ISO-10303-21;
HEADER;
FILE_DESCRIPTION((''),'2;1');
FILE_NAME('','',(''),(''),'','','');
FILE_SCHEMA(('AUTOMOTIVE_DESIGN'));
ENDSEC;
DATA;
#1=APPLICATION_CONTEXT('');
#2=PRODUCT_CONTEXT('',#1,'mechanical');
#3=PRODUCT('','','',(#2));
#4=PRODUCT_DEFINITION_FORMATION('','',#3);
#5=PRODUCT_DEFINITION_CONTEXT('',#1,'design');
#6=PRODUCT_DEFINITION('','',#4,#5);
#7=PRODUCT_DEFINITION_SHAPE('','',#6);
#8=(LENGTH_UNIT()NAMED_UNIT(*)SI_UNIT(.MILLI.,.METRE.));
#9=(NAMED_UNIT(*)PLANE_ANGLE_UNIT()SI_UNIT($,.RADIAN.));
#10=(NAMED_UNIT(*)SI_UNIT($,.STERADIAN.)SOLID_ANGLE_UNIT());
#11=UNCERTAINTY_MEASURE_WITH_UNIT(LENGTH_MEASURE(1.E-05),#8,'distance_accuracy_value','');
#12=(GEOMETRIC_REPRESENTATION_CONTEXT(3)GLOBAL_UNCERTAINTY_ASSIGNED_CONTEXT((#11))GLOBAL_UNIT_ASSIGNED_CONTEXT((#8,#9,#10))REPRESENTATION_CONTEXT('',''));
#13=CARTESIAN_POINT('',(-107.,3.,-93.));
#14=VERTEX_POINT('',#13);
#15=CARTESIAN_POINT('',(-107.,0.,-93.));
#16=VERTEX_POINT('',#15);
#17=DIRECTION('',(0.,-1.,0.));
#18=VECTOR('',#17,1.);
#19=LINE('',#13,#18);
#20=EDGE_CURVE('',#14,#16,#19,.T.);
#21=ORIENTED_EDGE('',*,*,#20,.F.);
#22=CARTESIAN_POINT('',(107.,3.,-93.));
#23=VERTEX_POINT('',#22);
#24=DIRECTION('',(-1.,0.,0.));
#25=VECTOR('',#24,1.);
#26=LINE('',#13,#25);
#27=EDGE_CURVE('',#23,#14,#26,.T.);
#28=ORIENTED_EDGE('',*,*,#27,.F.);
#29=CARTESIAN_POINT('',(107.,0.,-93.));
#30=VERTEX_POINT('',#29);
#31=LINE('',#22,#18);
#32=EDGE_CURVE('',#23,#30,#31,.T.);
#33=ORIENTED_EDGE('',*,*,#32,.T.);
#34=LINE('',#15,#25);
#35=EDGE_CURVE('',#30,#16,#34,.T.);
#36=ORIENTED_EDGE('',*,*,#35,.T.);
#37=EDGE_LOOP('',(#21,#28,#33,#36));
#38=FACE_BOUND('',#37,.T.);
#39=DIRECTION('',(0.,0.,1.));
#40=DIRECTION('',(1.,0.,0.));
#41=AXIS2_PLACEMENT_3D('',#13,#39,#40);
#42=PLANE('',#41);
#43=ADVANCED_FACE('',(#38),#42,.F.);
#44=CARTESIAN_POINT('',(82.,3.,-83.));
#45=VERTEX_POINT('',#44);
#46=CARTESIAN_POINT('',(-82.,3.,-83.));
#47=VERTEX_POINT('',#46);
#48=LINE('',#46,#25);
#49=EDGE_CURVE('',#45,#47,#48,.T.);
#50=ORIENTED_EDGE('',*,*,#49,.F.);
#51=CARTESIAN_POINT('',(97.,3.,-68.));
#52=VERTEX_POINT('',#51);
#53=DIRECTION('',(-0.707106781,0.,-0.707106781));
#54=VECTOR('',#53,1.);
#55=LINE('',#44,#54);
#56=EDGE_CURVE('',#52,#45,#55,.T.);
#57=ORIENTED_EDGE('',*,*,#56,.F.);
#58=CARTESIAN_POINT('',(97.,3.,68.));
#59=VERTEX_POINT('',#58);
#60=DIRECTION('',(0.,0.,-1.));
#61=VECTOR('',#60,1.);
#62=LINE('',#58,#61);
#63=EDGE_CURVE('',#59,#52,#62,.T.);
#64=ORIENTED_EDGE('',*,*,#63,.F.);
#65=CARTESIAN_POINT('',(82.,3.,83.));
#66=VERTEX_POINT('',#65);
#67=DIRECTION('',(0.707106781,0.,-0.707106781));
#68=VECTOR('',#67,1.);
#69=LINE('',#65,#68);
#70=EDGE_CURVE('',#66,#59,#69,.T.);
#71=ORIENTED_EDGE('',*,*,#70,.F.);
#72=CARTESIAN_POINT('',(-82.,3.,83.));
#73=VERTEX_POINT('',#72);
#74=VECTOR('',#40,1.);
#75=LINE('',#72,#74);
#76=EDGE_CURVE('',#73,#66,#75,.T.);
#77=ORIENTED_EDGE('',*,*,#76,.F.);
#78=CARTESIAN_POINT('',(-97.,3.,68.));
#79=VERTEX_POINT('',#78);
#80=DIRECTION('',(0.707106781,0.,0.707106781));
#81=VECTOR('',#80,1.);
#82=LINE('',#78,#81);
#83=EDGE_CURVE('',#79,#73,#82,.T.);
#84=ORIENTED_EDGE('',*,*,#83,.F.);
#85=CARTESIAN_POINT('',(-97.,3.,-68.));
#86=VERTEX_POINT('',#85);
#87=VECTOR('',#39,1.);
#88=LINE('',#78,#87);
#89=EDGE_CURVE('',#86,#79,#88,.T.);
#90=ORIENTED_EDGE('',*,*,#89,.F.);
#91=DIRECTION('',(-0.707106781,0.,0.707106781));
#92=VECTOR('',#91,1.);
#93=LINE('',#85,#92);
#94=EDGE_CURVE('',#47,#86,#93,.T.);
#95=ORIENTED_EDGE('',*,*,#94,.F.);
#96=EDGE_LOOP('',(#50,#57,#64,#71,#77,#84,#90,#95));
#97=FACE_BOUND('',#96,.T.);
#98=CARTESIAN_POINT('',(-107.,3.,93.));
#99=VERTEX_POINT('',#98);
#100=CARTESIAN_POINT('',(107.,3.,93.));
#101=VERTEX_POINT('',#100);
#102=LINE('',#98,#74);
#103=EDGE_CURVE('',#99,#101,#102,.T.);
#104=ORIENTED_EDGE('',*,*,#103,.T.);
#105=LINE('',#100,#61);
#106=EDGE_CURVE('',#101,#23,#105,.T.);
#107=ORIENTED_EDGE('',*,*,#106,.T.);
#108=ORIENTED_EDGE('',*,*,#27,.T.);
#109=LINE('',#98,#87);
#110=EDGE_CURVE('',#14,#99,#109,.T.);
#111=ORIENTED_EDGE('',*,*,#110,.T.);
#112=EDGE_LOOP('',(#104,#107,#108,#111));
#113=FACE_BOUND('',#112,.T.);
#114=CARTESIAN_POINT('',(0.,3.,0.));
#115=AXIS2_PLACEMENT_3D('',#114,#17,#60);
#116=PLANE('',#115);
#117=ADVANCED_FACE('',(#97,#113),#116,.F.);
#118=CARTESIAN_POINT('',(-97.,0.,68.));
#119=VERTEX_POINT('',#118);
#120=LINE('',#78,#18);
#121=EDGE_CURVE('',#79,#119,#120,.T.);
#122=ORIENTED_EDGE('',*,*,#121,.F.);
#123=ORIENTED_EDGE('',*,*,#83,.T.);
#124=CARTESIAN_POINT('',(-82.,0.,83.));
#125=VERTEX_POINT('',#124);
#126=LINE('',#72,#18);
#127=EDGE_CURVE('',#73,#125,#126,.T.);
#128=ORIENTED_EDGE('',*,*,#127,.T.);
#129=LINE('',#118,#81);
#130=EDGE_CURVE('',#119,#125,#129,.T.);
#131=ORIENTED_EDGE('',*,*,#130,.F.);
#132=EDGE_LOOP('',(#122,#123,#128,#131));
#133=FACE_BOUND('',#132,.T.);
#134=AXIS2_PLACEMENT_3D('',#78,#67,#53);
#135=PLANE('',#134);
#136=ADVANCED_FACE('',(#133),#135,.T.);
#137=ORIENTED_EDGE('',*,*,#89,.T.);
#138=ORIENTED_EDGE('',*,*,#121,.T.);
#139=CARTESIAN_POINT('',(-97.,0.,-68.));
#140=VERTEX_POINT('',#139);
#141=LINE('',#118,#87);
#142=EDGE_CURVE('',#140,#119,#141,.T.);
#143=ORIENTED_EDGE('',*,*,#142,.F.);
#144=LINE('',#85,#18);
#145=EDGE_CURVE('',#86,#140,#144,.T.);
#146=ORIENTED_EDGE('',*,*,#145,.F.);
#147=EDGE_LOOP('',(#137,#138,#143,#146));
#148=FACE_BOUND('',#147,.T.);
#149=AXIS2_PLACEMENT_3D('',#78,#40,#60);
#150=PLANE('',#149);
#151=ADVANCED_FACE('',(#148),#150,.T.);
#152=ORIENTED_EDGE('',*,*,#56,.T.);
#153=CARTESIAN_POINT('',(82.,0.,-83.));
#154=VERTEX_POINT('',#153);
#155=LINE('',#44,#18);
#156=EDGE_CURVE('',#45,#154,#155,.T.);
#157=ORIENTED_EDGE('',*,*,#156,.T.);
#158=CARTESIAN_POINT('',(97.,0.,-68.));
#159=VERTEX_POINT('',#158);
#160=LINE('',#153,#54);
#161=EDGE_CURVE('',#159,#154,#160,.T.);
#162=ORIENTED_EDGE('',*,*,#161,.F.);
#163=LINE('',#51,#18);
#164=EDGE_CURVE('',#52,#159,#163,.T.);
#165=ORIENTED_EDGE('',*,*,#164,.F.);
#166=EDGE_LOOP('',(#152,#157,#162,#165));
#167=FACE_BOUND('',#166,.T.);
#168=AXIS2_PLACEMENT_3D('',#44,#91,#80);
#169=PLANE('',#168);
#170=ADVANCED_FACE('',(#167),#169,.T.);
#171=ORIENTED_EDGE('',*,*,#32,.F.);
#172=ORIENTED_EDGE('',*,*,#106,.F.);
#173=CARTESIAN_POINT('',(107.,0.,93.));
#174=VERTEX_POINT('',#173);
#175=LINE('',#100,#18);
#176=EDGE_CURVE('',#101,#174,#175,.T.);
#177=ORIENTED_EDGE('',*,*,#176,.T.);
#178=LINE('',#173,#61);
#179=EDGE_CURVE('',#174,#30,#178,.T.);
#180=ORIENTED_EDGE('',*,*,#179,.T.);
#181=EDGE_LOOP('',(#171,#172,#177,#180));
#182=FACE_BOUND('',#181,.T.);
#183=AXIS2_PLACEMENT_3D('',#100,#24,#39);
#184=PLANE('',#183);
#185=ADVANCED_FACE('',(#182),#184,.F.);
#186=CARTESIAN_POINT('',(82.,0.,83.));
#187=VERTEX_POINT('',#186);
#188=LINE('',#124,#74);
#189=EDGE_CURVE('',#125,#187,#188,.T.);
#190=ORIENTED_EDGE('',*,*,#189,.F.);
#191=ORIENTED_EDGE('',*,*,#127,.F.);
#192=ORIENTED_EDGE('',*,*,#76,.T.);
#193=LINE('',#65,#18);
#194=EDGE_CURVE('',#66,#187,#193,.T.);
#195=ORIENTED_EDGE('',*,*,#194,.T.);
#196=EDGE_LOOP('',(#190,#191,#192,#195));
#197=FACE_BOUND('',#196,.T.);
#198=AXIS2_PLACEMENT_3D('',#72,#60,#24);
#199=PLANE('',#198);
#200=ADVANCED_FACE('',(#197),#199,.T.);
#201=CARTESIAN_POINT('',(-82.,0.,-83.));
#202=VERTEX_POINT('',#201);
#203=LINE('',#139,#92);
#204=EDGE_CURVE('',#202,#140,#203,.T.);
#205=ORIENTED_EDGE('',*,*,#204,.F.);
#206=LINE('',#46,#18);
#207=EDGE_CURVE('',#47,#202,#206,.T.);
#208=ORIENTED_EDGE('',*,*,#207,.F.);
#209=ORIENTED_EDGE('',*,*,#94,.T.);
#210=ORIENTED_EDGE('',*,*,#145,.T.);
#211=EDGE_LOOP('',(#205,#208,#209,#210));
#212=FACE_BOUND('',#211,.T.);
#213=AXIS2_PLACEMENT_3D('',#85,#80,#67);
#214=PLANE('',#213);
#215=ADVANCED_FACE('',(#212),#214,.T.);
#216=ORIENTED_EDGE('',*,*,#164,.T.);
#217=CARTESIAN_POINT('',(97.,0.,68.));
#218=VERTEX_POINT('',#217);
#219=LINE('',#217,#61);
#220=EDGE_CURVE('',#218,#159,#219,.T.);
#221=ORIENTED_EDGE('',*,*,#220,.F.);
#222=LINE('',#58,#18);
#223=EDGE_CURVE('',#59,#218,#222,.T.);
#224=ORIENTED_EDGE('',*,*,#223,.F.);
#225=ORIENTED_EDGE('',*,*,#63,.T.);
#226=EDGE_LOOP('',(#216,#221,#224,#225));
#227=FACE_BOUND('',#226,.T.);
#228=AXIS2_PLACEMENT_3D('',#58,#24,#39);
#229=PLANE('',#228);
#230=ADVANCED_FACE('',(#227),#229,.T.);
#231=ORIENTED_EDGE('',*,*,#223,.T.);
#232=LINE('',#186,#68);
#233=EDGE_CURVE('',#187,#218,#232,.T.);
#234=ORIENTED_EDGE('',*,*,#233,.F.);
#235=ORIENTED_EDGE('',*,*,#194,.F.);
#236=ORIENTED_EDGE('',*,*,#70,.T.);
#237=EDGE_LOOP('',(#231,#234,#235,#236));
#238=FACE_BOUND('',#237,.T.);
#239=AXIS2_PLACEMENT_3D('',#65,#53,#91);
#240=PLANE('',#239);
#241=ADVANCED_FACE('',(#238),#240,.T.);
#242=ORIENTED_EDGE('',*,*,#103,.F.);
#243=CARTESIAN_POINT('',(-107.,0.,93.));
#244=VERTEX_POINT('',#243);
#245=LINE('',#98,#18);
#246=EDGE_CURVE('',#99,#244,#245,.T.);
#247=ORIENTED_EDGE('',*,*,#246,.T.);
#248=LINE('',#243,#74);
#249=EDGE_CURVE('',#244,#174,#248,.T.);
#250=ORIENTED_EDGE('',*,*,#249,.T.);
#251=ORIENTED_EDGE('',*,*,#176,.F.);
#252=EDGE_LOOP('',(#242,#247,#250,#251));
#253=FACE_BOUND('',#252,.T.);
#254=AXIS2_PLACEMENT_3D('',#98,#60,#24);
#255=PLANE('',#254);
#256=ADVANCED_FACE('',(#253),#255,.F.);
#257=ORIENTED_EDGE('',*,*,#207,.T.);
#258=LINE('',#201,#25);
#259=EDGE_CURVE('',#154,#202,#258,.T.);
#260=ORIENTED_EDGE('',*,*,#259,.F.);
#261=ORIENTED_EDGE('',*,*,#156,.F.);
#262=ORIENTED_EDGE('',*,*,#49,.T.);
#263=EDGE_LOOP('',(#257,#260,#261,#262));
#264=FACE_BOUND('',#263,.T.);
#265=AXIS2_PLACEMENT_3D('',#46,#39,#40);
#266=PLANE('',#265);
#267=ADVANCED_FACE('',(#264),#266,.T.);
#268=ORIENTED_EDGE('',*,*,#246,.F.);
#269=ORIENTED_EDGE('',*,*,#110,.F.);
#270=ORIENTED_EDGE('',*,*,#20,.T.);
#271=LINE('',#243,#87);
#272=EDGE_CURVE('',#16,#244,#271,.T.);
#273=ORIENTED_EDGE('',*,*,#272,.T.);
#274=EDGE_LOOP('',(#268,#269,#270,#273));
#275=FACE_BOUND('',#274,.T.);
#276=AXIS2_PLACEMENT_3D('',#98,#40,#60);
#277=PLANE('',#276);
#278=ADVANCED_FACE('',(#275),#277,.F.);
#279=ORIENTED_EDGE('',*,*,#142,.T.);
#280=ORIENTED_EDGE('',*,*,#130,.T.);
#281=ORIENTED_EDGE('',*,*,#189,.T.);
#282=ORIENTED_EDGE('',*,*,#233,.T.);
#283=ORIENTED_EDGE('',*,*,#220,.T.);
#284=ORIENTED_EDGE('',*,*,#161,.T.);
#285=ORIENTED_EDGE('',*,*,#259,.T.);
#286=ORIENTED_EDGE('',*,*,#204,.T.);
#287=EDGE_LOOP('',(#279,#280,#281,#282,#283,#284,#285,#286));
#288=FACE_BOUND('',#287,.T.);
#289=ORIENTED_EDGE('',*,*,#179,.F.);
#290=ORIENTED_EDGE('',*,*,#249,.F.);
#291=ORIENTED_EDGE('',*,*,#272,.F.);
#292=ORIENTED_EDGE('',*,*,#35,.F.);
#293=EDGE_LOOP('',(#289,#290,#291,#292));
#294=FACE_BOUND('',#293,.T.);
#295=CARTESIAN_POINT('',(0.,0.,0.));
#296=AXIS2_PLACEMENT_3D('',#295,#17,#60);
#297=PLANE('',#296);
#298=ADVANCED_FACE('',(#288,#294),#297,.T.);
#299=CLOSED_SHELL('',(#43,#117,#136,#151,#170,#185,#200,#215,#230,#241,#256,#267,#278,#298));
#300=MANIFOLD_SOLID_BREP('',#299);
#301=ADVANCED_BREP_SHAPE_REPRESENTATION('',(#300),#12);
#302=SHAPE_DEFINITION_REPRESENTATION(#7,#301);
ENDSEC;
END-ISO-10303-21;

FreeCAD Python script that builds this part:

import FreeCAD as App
import Part
import Sketcher
from FreeCAD import Vector
Q = App.Units.Quantity


def add_polygon(sketch, points):
    """Adds a closed chain of lines whose ends are joined by coincident constraints."""
    first, n = sketch.GeometryCount, len(points)
    for a, b in zip(points, points[1:] + points[:1]):
        sketch.addGeometry(Part.LineSegment(App.Vector(*a, 0), App.Vector(*b, 0)), False)
    for i in range(n):
        sketch.addConstraint(Sketcher.Constraint("Coincident", first + i, 2, first + (i + 1) % n, 1))

doc = App.newDocument("Part")
body = doc.addObject("PartDesign::Body", "Body")

sketch1 = body.newObject("Sketcher::SketchObject", "Sketch")
sketch1.AttachmentSupport = (doc.getObject("XZ_Plane"), [""])
sketch1.MapMode = "FlatFace"
add_polygon(sketch1, [(-107, -93), (-107, 93), (107, 93), (107, -93)])
add_polygon(sketch1, [(-97, -68), (-82, -83), (82, -83), (97, -68), (97, 68), (82, 83), (-82, 83), (-97, 68)])
sketch1.addConstraint(Sketcher.Constraint("Vertical", 0))
sketch1.addConstraint(Sketcher.Constraint("Horizontal", 1))
sketch1.addConstraint(Sketcher.Constraint("Vertical", 2))
sketch1.addConstraint(Sketcher.Constraint("Horizontal", 3))
sketch1.addConstraint(Sketcher.Constraint("Horizontal", 5))
sketch1.addConstraint(Sketcher.Constraint("Vertical", 7))
sketch1.addConstraint(Sketcher.Constraint("Horizontal", 9))
sketch1.addConstraint(Sketcher.Constraint("Vertical", 11))
sketch1.addConstraint(Sketcher.Constraint("Symmetric", 0, 2, 2, 2, -1, 1))
sketch1.addConstraint(Sketcher.Constraint("Symmetric", 4, 2, 8, 2, -1, 1))
sketch1.addConstraint(Sketcher.Constraint("Symmetric", 6, 2, 10, 2, -1, 1))
sketch1.addConstraint(Sketcher.Constraint("Perpendicular", 4, 6))
sketch1.addConstraint(Sketcher.Constraint("Perpendicular", 6, 8))
sketch1.addConstraint(Sketcher.Constraint("Perpendicular", 8, 10))
sketch1.addConstraint(Sketcher.Constraint("Horizontal", 7, 2, 10, 2))
sketch1.addConstraint(Sketcher.Constraint("Vertical", 5, 2, 8, 2))
sketch1.addConstraint(Sketcher.Constraint("DistanceX", 1, 1, 1, 2, Q("214 mm")))
sketch1.addConstraint(Sketcher.Constraint("DistanceX", 5, 1, 5, 2, Q("164 mm")))
sketch1.addConstraint(Sketcher.Constraint("DistanceY", 0, 1, 0, 2, Q("186 mm")))
sketch1.addConstraint(Sketcher.Constraint("DistanceY", 7, 1, 7, 2, Q("136 mm")))
sketch1.addConstraint(Sketcher.Constraint("DistanceY", 4, 2, -1, 1, Q("83 mm")))
pad1 = body.newObject("PartDesign::Pad", "Pad")
pad1.Profile = sketch1
pad1.Length = 3
pad1.Reversed = True

doc.recompute()
